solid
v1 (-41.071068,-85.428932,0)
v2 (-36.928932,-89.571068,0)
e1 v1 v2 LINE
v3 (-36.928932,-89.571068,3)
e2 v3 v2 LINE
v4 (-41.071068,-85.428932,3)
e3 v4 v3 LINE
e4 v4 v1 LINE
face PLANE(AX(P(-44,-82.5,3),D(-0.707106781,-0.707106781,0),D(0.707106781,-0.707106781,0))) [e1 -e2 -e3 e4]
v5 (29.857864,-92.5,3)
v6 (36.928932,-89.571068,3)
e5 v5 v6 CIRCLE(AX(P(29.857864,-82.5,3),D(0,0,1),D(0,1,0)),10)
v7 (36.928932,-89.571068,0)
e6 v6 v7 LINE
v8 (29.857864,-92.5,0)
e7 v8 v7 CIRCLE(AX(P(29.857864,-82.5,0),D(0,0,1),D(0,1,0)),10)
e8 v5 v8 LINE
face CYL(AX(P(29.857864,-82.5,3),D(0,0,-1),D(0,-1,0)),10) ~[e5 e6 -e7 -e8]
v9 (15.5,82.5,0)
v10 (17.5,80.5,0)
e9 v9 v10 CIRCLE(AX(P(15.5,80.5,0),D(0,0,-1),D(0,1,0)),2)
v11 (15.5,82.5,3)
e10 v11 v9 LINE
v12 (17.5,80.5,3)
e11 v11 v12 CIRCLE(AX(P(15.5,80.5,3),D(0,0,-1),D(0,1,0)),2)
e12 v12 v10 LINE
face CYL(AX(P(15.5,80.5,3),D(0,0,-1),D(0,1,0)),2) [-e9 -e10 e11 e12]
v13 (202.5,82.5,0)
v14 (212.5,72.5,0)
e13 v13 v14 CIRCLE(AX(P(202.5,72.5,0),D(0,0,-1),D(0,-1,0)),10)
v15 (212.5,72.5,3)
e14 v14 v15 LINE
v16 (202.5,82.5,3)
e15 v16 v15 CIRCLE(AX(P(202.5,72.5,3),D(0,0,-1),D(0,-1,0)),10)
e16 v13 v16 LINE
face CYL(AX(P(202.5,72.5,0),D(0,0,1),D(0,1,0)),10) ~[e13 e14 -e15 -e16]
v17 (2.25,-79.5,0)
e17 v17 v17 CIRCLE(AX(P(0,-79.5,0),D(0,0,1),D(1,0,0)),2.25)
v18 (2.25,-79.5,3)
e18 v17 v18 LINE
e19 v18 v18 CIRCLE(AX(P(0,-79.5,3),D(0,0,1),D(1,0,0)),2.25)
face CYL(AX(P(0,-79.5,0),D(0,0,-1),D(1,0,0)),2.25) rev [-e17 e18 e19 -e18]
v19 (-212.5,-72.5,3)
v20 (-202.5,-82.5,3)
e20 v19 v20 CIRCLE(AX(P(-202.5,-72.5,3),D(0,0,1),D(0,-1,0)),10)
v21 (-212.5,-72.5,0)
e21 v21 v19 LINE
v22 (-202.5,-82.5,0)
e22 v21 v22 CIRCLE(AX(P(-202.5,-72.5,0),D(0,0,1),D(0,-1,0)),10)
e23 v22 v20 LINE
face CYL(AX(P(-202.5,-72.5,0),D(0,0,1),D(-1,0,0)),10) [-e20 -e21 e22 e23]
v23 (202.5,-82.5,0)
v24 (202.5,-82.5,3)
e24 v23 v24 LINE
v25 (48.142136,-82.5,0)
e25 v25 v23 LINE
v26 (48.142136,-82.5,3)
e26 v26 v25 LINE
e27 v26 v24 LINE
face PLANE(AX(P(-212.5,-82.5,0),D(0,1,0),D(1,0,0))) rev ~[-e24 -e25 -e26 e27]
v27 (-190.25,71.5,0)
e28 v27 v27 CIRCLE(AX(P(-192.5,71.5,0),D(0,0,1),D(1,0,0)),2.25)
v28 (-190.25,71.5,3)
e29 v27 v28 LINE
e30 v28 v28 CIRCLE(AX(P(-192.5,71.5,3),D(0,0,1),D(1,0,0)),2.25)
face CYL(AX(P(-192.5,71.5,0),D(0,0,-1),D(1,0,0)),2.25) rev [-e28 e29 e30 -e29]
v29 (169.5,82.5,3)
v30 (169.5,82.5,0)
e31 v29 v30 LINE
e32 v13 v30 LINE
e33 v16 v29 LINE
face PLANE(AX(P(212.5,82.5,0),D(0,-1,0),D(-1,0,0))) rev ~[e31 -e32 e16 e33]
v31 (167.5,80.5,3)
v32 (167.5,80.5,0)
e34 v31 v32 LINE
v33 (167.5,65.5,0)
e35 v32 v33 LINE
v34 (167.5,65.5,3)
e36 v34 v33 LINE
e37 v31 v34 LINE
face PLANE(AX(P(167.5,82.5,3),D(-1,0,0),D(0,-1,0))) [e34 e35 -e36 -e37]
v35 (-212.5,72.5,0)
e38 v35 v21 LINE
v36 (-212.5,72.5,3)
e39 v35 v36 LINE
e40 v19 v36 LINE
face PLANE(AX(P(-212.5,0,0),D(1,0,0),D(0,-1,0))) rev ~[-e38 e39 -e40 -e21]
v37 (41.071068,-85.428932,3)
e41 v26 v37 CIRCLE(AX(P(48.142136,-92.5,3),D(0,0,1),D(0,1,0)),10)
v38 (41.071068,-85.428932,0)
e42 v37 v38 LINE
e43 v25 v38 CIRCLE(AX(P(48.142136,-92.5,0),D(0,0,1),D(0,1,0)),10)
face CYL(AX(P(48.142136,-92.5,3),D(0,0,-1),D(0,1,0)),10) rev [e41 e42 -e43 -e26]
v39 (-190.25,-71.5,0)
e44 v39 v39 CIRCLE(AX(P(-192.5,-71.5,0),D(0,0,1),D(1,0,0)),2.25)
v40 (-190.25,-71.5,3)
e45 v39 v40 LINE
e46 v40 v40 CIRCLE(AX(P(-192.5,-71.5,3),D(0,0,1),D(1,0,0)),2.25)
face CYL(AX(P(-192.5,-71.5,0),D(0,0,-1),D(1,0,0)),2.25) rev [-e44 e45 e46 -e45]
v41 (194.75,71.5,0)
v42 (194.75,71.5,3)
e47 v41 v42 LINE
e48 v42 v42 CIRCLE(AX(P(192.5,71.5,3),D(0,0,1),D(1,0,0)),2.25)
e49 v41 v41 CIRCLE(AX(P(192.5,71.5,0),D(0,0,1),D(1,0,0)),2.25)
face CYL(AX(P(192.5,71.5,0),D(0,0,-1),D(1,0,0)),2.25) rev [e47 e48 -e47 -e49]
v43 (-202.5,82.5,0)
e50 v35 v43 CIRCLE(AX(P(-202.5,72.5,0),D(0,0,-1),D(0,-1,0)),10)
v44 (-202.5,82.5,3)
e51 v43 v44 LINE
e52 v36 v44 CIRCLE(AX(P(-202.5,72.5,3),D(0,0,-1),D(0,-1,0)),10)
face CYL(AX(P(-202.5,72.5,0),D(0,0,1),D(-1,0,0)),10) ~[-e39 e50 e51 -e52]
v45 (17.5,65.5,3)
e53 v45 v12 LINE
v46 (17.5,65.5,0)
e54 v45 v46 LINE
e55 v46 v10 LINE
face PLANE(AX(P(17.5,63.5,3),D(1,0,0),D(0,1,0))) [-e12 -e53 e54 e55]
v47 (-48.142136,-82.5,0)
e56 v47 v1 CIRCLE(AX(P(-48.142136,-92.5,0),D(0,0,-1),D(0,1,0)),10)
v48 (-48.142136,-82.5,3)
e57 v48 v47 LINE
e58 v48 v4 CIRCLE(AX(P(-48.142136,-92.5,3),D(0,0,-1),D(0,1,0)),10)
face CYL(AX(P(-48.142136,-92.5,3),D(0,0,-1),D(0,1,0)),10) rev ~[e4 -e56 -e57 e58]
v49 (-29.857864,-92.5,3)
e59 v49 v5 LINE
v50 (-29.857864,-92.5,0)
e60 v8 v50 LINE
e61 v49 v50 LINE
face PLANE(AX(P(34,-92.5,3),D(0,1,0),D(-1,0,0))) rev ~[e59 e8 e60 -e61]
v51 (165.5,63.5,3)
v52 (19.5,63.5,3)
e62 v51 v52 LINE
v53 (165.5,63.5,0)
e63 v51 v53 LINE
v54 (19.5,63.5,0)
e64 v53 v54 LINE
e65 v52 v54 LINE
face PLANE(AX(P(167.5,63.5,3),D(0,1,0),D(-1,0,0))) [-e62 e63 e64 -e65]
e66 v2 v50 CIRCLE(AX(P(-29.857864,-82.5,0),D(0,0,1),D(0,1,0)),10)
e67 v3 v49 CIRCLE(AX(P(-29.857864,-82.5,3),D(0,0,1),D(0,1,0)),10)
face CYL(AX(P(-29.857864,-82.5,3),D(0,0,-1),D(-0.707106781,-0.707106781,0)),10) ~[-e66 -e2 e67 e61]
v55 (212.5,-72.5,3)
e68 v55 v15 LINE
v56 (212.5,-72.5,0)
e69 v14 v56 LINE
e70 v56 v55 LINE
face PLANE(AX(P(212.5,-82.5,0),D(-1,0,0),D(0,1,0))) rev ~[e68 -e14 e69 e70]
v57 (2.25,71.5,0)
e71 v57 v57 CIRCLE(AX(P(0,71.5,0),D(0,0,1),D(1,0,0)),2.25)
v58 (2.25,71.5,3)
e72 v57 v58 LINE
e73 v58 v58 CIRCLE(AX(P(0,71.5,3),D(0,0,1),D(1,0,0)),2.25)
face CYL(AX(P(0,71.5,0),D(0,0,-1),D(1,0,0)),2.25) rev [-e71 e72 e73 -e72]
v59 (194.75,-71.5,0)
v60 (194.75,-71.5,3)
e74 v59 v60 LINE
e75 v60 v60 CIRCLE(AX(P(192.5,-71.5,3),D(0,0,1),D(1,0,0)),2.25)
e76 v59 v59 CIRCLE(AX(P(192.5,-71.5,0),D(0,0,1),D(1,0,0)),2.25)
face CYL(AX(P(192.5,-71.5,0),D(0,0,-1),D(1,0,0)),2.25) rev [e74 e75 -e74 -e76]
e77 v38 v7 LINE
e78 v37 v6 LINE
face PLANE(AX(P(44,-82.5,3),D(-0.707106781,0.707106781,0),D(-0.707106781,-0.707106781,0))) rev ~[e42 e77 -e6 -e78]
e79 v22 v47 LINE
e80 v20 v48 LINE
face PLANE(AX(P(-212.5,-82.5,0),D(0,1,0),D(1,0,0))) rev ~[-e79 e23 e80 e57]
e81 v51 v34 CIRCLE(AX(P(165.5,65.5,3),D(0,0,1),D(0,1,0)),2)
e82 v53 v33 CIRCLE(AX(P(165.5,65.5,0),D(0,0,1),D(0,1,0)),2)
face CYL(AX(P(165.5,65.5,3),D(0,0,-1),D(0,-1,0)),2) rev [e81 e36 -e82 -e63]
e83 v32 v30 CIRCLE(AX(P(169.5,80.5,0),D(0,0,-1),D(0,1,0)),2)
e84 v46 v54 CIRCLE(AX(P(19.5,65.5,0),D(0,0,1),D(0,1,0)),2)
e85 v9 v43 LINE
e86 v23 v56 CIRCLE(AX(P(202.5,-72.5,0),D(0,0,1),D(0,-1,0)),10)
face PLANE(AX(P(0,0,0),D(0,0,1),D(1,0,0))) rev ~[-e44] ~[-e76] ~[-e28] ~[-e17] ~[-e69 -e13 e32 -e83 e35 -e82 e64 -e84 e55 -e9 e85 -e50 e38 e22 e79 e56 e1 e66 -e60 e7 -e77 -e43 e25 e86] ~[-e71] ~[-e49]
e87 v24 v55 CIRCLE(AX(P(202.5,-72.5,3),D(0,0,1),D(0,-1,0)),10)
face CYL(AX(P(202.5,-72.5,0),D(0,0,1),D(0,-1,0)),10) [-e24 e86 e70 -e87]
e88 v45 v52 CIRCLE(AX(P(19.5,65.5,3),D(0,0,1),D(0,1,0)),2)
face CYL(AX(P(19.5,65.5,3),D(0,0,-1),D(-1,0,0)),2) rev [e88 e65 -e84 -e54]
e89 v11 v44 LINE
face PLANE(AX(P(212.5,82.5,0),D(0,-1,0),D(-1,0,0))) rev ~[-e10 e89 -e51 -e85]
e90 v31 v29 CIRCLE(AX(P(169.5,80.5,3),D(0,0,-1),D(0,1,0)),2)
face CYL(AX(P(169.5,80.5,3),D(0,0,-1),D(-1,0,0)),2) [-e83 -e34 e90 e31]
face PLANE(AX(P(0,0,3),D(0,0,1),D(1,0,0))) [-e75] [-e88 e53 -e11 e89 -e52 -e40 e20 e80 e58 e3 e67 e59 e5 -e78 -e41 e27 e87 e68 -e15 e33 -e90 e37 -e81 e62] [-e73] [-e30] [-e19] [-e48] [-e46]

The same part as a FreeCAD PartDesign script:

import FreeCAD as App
import Part
import Sketcher

V = App.Vector


def edges_at(feature, points):
    """Names of the edges that pass closest to the given points."""
    edges = feature.Shape.Edges
    near = lambda p: min(range(len(edges)), key=lambda i: edges[i].distToShape(Part.Vertex(*p))[0])
    return sorted({f"Edge{near(p) + 1}" for p in points})

doc = App.newDocument("Part")
body = doc.addObject("PartDesign::Body", "Body")

# Sketch on XY plane
sketch1 = doc.addObject("Sketcher::SketchObject", "Sketch")
body.addObject(sketch1)
sketch1.AttachmentSupport = (doc.XY_Plane, [""])
sketch1.MapMode = "FlatFace"
sketch1.addGeometry([
    Part.LineSegment(V(-212.5, -82.5, 0), V(212.5, -82.5, 0)),  # 0
    Part.LineSegment(V(212.5, -82.5, 0), V(212.5, 82.5, 0)),  # 1
    Part.LineSegment(V(212.5, 82.5, 0), V(-212.5, 82.5, 0)),  # 2
    Part.LineSegment(V(-212.5, 82.5, 0), V(-212.5, -82.5, 0)),  # 3
    Part.Circle(V(-192.5, -71.5, 0), V(0, 0, 1), 2.2),  # 4
    Part.Circle(V(0, -79.5, 0), V(0, 0, 1), 2.2),  # 5
    Part.Circle(V(192.5, -71.5, 0), V(0, 0, 1), 2.2),  # 6
    Part.Circle(V(192.5, 71.5, 0), V(0, 0, 1), 2.2),  # 7
    Part.Circle(V(-192.5, 71.5, 0), V(0, 0, 1), 2.2),  # 8
    Part.Circle(V(0, 71.5, 0), V(0, 0, 1), 2.2),  # 9
], False)
sketch1.addConstraint([
    Sketcher.Constraint("Coincident", 0, 2, 1, 1),
    Sketcher.Constraint("Coincident", 1, 2, 2, 1),
    Sketcher.Constraint("Coincident", 2, 2, 3, 1),
    Sketcher.Constraint("Coincident", 3, 2, 0, 1),
    Sketcher.Constraint("Horizontal", 0),
    Sketcher.Constraint("Vertical", 1),
    Sketcher.Constraint("Horizontal", 2),
    Sketcher.Constraint("Vertical", 3),
    Sketcher.Constraint("Equal", 4, 5),
    Sketcher.Constraint("Equal", 5, 6),
    Sketcher.Constraint("Equal", 6, 7),
    Sketcher.Constraint("Equal", 7, 8),
    Sketcher.Constraint("Equal", 8, 9),
    Sketcher.Constraint("Symmetric", 4, 3, 7, 3, -1, 1),
    Sketcher.Constraint("Symmetric", 6, 3, 8, 3, -1, 1),
    Sketcher.Constraint("Symmetric", 0, 2, 2, 2, -1, 1),
    Sketcher.Constraint("Symmetric", 4, 3, 6, 3, -2),
    Sketcher.Constraint("PointOnObject", 5, 3, -2),
    Sketcher.Constraint("PointOnObject", 9, 3, -2),
    Sketcher.Constraint("Horizontal", 8, 3, 9, 3),
    Sketcher.Constraint("Diameter", 4, 4.5),
    Sketcher.Constraint("DistanceX", 0, 1, 0, 2, 425.0),
    Sketcher.Constraint("DistanceY", 1, 1, 1, 2, 165.0),
    Sketcher.Constraint("DistanceY", 5, 3, 4, 3, 8.0),
    Sketcher.Constraint("DistanceX", 4, 3, -1, 1, 192.5),
    Sketcher.Constraint("DistanceY", 4, 3, -1, 1, 71.5),
])
pad1 = doc.addObject("PartDesign::Pad", "Pad")
body.addObject(pad1)
pad1.Profile = sketch1
pad1.Length = 3
doc.recompute()

fillet = doc.addObject("PartDesign::Fillet", "Fillet")
body.addObject(fillet)
fillet.Base = (pad1, edges_at(pad1, [
    (-212.5, -82.5, 1.5),
    (-212.5, 82.5, 1.5),
    (212.5, -82.5, 1.5),
    (212.5, 82.5, 1.5),
]))
fillet.Radius = 10

# Sketch on XY plane
sketch2 = doc.addObject("Sketcher::SketchObject", "Sketch001")
body.addObject(sketch2)
sketch2.AttachmentSupport = (doc.XY_Plane, [""])
sketch2.MapMode = "FlatFace"
sketch2.AttachmentOffset = App.Placement(V(0, 0, 3), App.Rotation())
sketch2.addGeometry([
    Part.LineSegment(V(168, 82, 0), V(18, 82, 0)),
    Part.LineSegment(V(18, 82, 0), V(18, 64, 0)),
    Part.LineSegment(V(18, 64, 0), V(168, 64, 0)),
    Part.LineSegment(V(168, 64, 0), V(168, 82, 0)),
], False)
sketch2.addConstraint([
    Sketcher.Constraint("Coincident", 0, 2, 1, 1),
    Sketcher.Constraint("Coincident", 1, 2, 2, 1),
    Sketcher.Constraint("Coincident", 2, 2, 3, 1),
    Sketcher.Constraint("Coincident", 3, 2, 0, 1),
    Sketcher.Constraint("Horizontal", 0),
    Sketcher.Constraint("Vertical", 1),
    Sketcher.Constraint("Horizontal", 2),
    Sketcher.Constraint("Vertical", 3),
    Sketcher.Constraint("DistanceX", 0, 2, 0, 1, 150.0),
    Sketcher.Constraint("DistanceY", 1, 2, 1, 1, 19.0),
    Sketcher.Constraint("DistanceX", -1, 1, 0, 2, 17.5),
    Sketcher.Constraint("DistanceY", -1, 1, 0, 2, 82.5),
])
pocket1 = doc.addObject("PartDesign::Pocket", "Pocket")
body.addObject(pocket1)
pocket1.Profile = sketch2
pocket1.Length = 3
doc.recompute()

fillet2 = doc.addObject("PartDesign::Fillet", "Fillet001")
body.addObject(fillet2)
fillet2.Base = (pocket1, edges_at(pocket1, [
    (17.5, 63.5, 1.5),
    (17.5, 82.5, 1.5),
    (167.5, 82.5, 1.5),
    (167.5, 63.5, 1.5),
]))
fillet2.Radius = 2

# Sketch on XY plane
sketch3 = doc.addObject("Sketcher::SketchObject", "Sketch002")
body.addObject(sketch3)
sketch3.AttachmentSupport = (doc.XY_Plane, [""])
sketch3.MapMode = "FlatFace"
sketch3.AttachmentOffset = App.Placement(V(0, 0, 3), App.Rotation())
sketch3.addGeometry([
    Part.LineSegment(V(44, -82, 0), V(-44, -82, 0)),
    Part.LineSegment(V(-44, -82, 0), V(-34, -92, 0)),
    Part.LineSegment(V(-34, -92, 0), V(34, -92, 0)),
    Part.LineSegment(V(34, -92, 0), V(44, -82, 0)),
], False)
sketch3.addConstraint([
    Sketcher.Constraint("Coincident", 0, 2, 1, 1),
    Sketcher.Constraint("Coincident", 1, 2, 2, 1),
    Sketcher.Constraint("Coincident", 2, 2, 3, 1),
    Sketcher.Constraint("Coincident", 3, 2, 0, 1),
    Sketcher.Constraint("Horizontal", 0),
    Sketcher.Constraint("Horizontal", 2),
    Sketcher.Constraint("Perpendicular", 1, 3),
    Sketcher.Constraint("Equal", 1, 3),
    Sketcher.Constraint("DistanceX", 0, 2, 1, 2, 10.0),
    Sketcher.Constraint("DistanceX", 0, 2, 0, 1, 88.0),
    Sketcher.Constraint("DistanceX", 0, 2, -1, 1, 44.0),
    Sketcher.Constraint("DistanceY", 0, 2, -1, 1, 82.5),
])
pad2 = doc.addObject("PartDesign::Pad", "Pad001")
body.addObject(pad2)
pad2.Profile = sketch3
pad2.Length = 3
pad2.Reversed = True
doc.recompute()

fillet3 = doc.addObject("PartDesign::Fillet", "Fillet002")
body.addObject(fillet3)
fillet3.Base = (pad2, edges_at(pad2, [
    (-44, -82.5, 1.5),
    (-34, -92.5, 1.5),
    (34, -92.5, 1.5),
    (44, -82.5, 1.5),
]))
fillet3.Radius = 10

doc.recompute()
